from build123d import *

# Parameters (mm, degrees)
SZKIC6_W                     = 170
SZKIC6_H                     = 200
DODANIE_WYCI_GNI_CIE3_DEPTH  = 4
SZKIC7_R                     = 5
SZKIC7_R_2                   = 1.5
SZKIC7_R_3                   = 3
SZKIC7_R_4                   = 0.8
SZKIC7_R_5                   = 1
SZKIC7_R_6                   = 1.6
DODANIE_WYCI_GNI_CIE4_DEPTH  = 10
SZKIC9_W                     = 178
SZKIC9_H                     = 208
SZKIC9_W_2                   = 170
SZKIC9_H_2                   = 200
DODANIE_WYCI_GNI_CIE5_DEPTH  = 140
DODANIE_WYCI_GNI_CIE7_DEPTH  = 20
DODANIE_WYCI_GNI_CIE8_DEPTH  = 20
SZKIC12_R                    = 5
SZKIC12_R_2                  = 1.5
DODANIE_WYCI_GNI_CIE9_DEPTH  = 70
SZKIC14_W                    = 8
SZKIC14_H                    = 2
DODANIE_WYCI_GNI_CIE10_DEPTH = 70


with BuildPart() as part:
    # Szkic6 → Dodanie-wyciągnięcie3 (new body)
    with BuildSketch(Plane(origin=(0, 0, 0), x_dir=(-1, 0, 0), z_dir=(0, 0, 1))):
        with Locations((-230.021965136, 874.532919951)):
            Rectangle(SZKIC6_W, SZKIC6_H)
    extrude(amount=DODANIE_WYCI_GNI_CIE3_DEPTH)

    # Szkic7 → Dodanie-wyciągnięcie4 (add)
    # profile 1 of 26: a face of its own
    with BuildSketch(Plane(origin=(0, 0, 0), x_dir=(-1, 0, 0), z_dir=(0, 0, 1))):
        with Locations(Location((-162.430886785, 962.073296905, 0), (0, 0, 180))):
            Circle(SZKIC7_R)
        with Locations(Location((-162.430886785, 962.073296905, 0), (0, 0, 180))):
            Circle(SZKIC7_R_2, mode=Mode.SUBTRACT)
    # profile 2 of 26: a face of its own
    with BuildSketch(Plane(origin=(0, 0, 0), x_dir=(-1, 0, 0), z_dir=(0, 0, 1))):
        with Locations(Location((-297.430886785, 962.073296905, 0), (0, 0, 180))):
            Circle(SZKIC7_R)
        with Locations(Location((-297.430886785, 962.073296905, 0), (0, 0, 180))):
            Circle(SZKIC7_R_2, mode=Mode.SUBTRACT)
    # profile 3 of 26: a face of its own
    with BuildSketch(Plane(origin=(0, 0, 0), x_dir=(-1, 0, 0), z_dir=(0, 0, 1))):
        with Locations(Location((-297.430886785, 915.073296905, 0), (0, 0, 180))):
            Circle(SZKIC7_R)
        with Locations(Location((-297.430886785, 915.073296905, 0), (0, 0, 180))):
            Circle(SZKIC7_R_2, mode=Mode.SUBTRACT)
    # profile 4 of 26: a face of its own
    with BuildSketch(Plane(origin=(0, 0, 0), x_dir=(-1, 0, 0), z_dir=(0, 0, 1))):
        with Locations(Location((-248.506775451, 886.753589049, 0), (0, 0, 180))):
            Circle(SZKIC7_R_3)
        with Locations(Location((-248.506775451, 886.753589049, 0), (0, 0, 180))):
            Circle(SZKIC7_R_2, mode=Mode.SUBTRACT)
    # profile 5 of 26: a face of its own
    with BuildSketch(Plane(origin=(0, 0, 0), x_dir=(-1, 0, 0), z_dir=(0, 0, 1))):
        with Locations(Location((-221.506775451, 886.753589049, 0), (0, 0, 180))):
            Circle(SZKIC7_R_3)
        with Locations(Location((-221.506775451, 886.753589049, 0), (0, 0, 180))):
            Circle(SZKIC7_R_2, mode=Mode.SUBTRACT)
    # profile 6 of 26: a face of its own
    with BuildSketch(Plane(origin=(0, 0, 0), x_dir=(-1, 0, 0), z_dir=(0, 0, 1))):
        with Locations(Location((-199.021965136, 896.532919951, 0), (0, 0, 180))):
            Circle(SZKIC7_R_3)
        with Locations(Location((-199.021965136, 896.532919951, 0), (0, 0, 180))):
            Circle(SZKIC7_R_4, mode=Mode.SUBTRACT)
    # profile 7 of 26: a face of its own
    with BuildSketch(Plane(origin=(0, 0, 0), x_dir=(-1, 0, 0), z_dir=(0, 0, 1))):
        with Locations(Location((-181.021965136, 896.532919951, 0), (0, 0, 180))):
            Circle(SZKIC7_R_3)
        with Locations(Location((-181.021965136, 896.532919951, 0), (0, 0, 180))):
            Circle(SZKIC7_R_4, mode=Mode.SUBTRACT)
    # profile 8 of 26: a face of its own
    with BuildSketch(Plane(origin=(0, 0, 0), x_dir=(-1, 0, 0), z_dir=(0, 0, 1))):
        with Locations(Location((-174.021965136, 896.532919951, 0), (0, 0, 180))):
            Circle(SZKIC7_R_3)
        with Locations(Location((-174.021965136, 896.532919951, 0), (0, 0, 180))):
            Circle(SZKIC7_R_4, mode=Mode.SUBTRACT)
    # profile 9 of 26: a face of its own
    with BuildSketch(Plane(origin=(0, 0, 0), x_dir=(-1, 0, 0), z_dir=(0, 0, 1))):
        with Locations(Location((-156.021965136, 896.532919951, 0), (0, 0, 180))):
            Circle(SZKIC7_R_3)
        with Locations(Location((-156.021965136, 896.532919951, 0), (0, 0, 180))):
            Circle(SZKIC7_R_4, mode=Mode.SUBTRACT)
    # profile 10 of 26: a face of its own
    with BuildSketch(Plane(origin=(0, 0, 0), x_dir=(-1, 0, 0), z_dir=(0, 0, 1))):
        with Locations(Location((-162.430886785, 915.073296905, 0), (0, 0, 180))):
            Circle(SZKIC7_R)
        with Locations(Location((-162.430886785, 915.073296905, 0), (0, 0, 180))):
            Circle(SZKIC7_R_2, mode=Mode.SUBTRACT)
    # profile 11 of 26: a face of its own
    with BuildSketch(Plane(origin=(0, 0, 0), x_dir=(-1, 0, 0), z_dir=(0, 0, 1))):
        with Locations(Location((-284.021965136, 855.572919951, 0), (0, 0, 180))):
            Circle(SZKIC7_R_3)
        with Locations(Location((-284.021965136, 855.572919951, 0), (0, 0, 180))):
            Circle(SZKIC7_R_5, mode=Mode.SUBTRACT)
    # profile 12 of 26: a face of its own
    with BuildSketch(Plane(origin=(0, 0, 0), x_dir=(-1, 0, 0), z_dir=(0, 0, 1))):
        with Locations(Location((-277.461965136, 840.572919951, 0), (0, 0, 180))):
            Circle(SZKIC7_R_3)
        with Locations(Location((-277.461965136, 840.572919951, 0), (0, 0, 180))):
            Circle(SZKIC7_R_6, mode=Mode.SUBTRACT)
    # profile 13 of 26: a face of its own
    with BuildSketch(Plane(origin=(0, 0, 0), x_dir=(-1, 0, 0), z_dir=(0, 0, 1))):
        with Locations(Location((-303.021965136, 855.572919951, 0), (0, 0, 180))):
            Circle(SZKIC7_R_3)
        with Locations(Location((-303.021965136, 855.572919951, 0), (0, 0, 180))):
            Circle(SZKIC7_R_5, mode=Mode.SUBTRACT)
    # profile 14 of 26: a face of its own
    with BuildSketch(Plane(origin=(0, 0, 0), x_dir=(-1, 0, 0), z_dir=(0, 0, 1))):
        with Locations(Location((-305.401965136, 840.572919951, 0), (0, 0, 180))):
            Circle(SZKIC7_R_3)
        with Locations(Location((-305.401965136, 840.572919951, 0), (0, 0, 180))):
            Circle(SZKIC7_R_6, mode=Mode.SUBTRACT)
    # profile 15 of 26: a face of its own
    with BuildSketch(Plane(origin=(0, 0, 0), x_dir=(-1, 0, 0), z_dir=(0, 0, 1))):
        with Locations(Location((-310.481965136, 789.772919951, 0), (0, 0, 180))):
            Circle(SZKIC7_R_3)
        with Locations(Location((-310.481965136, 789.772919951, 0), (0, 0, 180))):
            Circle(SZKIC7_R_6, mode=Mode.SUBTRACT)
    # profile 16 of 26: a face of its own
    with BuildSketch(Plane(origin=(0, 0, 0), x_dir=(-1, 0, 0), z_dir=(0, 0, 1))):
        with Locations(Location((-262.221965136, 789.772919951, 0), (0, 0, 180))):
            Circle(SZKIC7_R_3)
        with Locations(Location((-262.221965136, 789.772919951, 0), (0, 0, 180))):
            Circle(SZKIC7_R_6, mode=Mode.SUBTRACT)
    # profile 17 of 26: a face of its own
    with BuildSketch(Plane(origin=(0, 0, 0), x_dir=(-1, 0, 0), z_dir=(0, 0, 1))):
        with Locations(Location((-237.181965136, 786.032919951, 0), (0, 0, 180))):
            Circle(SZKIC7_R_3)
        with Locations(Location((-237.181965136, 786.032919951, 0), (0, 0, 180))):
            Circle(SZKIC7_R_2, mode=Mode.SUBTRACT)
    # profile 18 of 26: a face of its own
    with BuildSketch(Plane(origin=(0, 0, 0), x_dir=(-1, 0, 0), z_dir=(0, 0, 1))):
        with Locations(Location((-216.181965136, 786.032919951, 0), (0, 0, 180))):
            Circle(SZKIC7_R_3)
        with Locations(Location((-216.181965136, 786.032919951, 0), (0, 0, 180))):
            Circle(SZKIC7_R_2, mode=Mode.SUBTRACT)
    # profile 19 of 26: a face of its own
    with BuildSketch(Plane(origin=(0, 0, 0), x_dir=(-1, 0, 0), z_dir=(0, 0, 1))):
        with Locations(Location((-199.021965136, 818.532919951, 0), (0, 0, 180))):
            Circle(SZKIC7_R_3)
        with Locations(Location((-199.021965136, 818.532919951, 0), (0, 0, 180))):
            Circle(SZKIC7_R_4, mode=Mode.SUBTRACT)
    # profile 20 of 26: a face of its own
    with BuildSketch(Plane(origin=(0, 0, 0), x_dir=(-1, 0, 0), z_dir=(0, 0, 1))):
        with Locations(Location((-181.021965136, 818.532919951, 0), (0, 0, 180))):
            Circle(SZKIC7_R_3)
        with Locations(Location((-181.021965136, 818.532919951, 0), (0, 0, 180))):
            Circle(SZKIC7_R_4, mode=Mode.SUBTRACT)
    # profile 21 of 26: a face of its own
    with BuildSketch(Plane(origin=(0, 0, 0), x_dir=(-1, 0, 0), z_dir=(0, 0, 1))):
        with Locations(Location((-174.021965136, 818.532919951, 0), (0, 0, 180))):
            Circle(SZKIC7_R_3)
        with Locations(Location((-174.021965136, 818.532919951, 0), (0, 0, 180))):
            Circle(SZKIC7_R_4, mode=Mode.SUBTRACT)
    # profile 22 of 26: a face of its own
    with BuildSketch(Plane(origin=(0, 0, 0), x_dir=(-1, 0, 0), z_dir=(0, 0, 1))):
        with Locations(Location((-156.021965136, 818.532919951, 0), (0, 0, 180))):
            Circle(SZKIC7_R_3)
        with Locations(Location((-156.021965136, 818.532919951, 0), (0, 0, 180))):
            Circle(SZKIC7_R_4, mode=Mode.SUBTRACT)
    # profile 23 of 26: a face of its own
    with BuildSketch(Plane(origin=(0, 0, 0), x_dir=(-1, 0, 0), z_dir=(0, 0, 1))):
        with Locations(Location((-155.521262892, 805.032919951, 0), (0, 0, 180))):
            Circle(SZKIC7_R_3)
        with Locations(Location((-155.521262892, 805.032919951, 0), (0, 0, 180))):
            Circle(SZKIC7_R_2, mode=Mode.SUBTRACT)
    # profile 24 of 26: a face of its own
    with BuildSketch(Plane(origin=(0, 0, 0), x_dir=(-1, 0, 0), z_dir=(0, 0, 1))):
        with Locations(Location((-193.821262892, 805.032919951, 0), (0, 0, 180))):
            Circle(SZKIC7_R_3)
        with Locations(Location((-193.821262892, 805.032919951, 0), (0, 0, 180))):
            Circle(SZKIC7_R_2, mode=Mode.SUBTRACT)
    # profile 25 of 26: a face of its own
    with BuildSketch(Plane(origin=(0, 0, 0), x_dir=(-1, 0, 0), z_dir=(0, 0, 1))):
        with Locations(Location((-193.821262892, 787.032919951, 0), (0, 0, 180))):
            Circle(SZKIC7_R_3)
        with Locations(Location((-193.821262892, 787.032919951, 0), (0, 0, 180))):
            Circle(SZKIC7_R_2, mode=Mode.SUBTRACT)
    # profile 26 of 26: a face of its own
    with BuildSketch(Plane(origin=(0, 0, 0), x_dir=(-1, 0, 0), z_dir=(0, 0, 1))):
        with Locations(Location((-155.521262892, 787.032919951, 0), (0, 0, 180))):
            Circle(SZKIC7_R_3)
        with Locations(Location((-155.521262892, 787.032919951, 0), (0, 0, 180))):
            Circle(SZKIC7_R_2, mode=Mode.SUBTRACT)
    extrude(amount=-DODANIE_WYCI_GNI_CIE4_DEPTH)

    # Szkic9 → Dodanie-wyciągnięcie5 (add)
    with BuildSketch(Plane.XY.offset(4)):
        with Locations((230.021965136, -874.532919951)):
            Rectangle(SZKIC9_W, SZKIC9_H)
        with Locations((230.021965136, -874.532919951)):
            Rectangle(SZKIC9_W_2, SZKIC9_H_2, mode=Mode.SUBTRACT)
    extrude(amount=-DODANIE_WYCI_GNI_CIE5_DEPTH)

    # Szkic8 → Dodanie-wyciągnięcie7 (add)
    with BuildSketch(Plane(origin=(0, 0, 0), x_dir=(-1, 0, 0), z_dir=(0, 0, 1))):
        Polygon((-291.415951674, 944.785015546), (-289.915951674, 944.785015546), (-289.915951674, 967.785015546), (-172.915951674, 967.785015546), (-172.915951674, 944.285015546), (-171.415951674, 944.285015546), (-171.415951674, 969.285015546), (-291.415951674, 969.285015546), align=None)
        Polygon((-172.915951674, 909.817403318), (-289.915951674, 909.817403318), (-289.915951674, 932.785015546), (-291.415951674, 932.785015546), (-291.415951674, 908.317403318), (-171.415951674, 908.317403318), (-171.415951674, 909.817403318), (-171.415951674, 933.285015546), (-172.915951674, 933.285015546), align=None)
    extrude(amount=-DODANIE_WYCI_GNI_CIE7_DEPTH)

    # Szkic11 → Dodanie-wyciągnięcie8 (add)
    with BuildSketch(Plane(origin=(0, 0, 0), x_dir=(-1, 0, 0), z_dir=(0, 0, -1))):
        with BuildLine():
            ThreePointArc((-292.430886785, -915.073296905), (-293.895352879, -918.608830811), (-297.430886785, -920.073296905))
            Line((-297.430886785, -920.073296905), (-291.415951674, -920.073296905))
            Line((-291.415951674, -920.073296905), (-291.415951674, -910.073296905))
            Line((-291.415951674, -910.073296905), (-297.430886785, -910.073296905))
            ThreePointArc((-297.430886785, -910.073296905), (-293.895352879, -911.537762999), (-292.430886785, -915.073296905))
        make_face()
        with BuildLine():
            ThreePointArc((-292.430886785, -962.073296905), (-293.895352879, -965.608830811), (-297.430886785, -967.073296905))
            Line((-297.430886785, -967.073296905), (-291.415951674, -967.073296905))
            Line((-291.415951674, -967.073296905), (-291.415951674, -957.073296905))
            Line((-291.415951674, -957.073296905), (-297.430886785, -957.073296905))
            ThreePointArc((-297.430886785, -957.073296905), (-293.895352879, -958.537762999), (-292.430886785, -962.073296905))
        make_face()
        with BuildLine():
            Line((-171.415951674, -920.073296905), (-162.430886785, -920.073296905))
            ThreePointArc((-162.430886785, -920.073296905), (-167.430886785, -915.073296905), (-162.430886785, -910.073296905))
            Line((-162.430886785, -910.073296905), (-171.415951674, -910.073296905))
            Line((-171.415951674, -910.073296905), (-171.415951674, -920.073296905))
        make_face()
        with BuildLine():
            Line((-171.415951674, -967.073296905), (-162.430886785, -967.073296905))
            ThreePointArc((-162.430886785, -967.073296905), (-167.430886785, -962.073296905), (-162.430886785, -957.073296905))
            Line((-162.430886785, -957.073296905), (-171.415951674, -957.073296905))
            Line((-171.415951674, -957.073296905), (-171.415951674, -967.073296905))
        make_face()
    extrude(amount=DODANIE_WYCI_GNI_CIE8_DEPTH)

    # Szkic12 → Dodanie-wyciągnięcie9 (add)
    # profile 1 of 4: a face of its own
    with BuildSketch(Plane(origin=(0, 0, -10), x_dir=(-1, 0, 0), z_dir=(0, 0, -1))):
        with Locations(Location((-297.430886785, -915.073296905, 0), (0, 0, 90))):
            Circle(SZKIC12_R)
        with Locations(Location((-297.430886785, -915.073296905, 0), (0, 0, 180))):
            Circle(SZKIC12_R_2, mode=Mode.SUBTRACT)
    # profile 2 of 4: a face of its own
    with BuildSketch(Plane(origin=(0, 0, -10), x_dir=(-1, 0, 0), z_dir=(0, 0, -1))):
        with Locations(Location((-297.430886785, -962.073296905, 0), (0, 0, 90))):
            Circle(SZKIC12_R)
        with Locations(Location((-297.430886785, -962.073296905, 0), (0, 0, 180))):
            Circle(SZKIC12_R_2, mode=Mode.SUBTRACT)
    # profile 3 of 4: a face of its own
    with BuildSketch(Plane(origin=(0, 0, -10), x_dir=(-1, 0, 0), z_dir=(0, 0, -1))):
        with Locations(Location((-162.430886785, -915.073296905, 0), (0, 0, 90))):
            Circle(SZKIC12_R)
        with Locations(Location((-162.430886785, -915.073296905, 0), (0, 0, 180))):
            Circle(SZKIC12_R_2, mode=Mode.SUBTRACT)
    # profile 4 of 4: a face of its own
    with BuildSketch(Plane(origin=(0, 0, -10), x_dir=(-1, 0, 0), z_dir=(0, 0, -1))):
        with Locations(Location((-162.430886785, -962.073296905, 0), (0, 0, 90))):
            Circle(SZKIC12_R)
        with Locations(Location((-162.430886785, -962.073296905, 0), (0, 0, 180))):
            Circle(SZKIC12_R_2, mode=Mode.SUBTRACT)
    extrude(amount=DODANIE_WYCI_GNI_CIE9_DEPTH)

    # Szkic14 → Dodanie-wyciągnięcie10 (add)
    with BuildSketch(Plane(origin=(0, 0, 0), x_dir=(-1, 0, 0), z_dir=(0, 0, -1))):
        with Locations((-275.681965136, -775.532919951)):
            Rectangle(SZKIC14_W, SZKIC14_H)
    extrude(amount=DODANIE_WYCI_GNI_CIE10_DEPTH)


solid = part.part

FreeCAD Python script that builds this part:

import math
import FreeCAD as App
import Part
import Sketcher
from FreeCAD import Vector
Q = App.Units.Quantity


def add_polygon(sketch, points):
    """Adds a closed chain of lines whose ends are joined by coincident constraints."""
    first, n = sketch.GeometryCount, len(points)
    for a, b in zip(points, points[1:] + points[:1]):
        sketch.addGeometry(Part.LineSegment(App.Vector(*a, 0), App.Vector(*b, 0)), False)
    for i in range(n):
        sketch.addConstraint(Sketcher.Constraint("Coincident", first + i, 2, first + (i + 1) % n, 1))

doc = App.newDocument("Part")
body = doc.addObject("PartDesign::Body", "Body")

# Sketch on XY plane
sketch1 = body.newObject("Sketcher::SketchObject", "Sketch")
sketch1.AttachmentSupport = (doc.getObject("XY_Plane"), [""])
sketch1.MapMode = "FlatFace"
add_polygon(sketch1, [(315.021965, -974.53292), (315.021965, -774.53292), (145.021965, -774.53292), (145.021965, -974.53292)])  # lines 0-3
sketch1.addConstraint(Sketcher.Constraint("Vertical", 0))
sketch1.addConstraint(Sketcher.Constraint("Horizontal", 1))
sketch1.addConstraint(Sketcher.Constraint("Vertical", 2))
sketch1.addConstraint(Sketcher.Constraint("Horizontal", 3))
sketch1.addConstraint(Sketcher.Constraint("DistanceX", 1, 2, 1, 1, Q("170 mm")))
sketch1.addConstraint(Sketcher.Constraint("DistanceY", 0, 1, 0, 2, Q("200 mm")))
sketch1.addConstraint(Sketcher.Constraint("DistanceY", 0, 2, -1, 1, Q("774.53292 mm")))
sketch1.addConstraint(Sketcher.Constraint("DistanceX", -1, 1, 0, 2, Q("315.021965 mm")))
pad1 = body.newObject("PartDesign::Pad", "Pad")
pad1.Profile = sketch1
pad1.Length = 4

# Sketch on XY plane
sketch2 = body.newObject("Sketcher::SketchObject", "Sketch001")
sketch2.AttachmentSupport = (doc.getObject("XY_Plane"), [""])
sketch2.MapMode = "FlatFace"
sketch2.addGeometry(Part.Circle(Vector(162.430887, -962.073297, 0), Vector(0, 0, 1), 5), False)
sketch2.addGeometry(Part.Circle(Vector(162.430887, -962.073297, 0), Vector(0, 0, 1), 1.5), False)
sketch2.addGeometry(Part.Circle(Vector(297.430887, -962.073297, 0), Vector(0, 0, 1), 5), False)
sketch2.addGeometry(Part.Circle(Vector(297.430887, -962.073297, 0), Vector(0, 0, 1), 1.5), False)
sketch2.addGeometry(Part.Circle(Vector(297.430887, -915.073297, 0), Vector(0, 0, 1), 5), False)
sketch2.addGeometry(Part.Circle(Vector(297.430887, -915.073297, 0), Vector(0, 0, 1), 1.5), False)
sketch2.addGeometry(Part.Circle(Vector(248.506775, -886.753589, 0), Vector(0, 0, 1), 3), False)
sketch2.addGeometry(Part.Circle(Vector(248.506775, -886.753589, 0), Vector(0, 0, 1), 1.5), False)
sketch2.addGeometry(Part.Circle(Vector(221.506775, -886.753589, 0), Vector(0, 0, 1), 3), False)
sketch2.addGeometry(Part.Circle(Vector(221.506775, -886.753589, 0), Vector(0, 0, 1), 1.5), False)
sketch2.addGeometry(Part.Circle(Vector(199.021965, -896.53292, 0), Vector(0, 0, 1), 3), False)
sketch2.addGeometry(Part.Circle(Vector(199.021965, -896.53292, 0), Vector(0, 0, 1), 0.8), False)
sketch2.addGeometry(Part.Circle(Vector(181.021965, -896.53292, 0), Vector(0, 0, 1), 3), False)
sketch2.addGeometry(Part.Circle(Vector(181.021965, -896.53292, 0), Vector(0, 0, 1), 0.8), False)
sketch2.addGeometry(Part.Circle(Vector(174.021965, -896.53292, 0), Vector(0, 0, 1), 3), False)
sketch2.addGeometry(Part.Circle(Vector(174.021965, -896.53292, 0), Vector(0, 0, 1), 0.8), False)
sketch2.addGeometry(Part.Circle(Vector(156.021965, -896.53292, 0), Vector(0, 0, 1), 3), False)
sketch2.addGeometry(Part.Circle(Vector(156.021965, -896.53292, 0), Vector(0, 0, 1), 0.8), False)
sketch2.addGeometry(Part.Circle(Vector(162.430887, -915.073297, 0), Vector(0, 0, 1), 5), False)
sketch2.addGeometry(Part.Circle(Vector(162.430887, -915.073297, 0), Vector(0, 0, 1), 1.5), False)
sketch2.addGeometry(Part.Circle(Vector(284.021965, -855.57292, 0), Vector(0, 0, 1), 3), False)
sketch2.addGeometry(Part.Circle(Vector(284.021965, -855.57292, 0), Vector(0, 0, 1), 1), False)
sketch2.addGeometry(Part.Circle(Vector(277.461965, -840.57292, 0), Vector(0, 0, 1), 3), False)
sketch2.addGeometry(Part.Circle(Vector(277.461965, -840.57292, 0), Vector(0, 0, 1), 1.6), False)
sketch2.addGeometry(Part.Circle(Vector(303.021965, -855.57292, 0), Vector(0, 0, 1), 3), False)
sketch2.addGeometry(Part.Circle(Vector(303.021965, -855.57292, 0), Vector(0, 0, 1), 1), False)
sketch2.addGeometry(Part.Circle(Vector(305.401965, -840.57292, 0), Vector(0, 0, 1), 3), False)
sketch2.addGeometry(Part.Circle(Vector(305.401965, -840.57292, 0), Vector(0, 0, 1), 1.6), False)
sketch2.addGeometry(Part.Circle(Vector(310.481965, -789.77292, 0), Vector(0, 0, 1), 3), False)
sketch2.addGeometry(Part.Circle(Vector(310.481965, -789.77292, 0), Vector(0, 0, 1), 1.6), False)
sketch2.addGeometry(Part.Circle(Vector(262.221965, -789.77292, 0), Vector(0, 0, 1), 3), False)
sketch2.addGeometry(Part.Circle(Vector(262.221965, -789.77292, 0), Vector(0, 0, 1), 1.6), False)
sketch2.addGeometry(Part.Circle(Vector(237.181965, -786.03292, 0), Vector(0, 0, 1), 3), False)
sketch2.addGeometry(Part.Circle(Vector(237.181965, -786.03292, 0), Vector(0, 0, 1), 1.5), False)
sketch2.addGeometry(Part.Circle(Vector(216.181965, -786.03292, 0), Vector(0, 0, 1), 3), False)
sketch2.addGeometry(Part.Circle(Vector(216.181965, -786.03292, 0), Vector(0, 0, 1), 1.5), False)
sketch2.addGeometry(Part.Circle(Vector(199.021965, -818.53292, 0), Vector(0, 0, 1), 3), False)
sketch2.addGeometry(Part.Circle(Vector(199.021965, -818.53292, 0), Vector(0, 0, 1), 0.8), False)
sketch2.addGeometry(Part.Circle(Vector(181.021965, -818.53292, 0), Vector(0, 0, 1), 3), False)
sketch2.addGeometry(Part.Circle(Vector(181.021965, -818.53292, 0), Vector(0, 0, 1), 0.8), False)
sketch2.addGeometry(Part.Circle(Vector(174.021965, -818.53292, 0), Vector(0, 0, 1), 3), False)
sketch2.addGeometry(Part.Circle(Vector(174.021965, -818.53292, 0), Vector(0, 0, 1), 0.8), False)
sketch2.addGeometry(Part.Circle(Vector(156.021965, -818.53292, 0), Vector(0, 0, 1), 3), False)
sketch2.addGeometry(Part.Circle(Vector(156.021965, -818.53292, 0), Vector(0, 0, 1), 0.8), False)
sketch2.addGeometry(Part.Circle(Vector(155.521263, -805.03292, 0), Vector(0, 0, 1), 3), False)
sketch2.addGeometry(Part.Circle(Vector(155.521263, -805.03292, 0), Vector(0, 0, 1), 1.5), False)
sketch2.addGeometry(Part.Circle(Vector(193.821263, -805.03292, 0), Vector(0, 0, 1), 3), False)
sketch2.addGeometry(Part.Circle(Vector(193.821263, -805.03292, 0), Vector(0, 0, 1), 1.5), False)
sketch2.addGeometry(Part.Circle(Vector(193.821263, -787.03292, 0), Vector(0, 0, 1), 3), False)
sketch2.addGeometry(Part.Circle(Vector(193.821263, -787.03292, 0), Vector(0, 0, 1), 1.5), False)
sketch2.addGeometry(Part.Circle(Vector(155.521263, -787.03292, 0), Vector(0, 0, 1), 3), False)
sketch2.addGeometry(Part.Circle(Vector(155.521263, -787.03292, 0), Vector(0, 0, 1), 1.5), False)
sketch2.addConstraint(Sketcher.Constraint("Coincident", 1, 3, 0, 3))
sketch2.addConstraint(Sketcher.Constraint("Coincident", 3, 3, 2, 3))
sketch2.addConstraint(Sketcher.Constraint("Coincident", 5, 3, 4, 3))
sketch2.addConstraint(Sketcher.Constraint("Coincident", 7, 3, 6, 3))
sketch2.addConstraint(Sketcher.Constraint("Coincident", 9, 3, 8, 3))
sketch2.addConstraint(Sketcher.Constraint("Coincident", 11, 3, 10, 3))
sketch2.addConstraint(Sketcher.Constraint("Coincident", 13, 3, 12, 3))
sketch2.addConstraint(Sketcher.Constraint("Coincident", 15, 3, 14, 3))
sketch2.addConstraint(Sketcher.Constraint("Coincident", 17, 3, 16, 3))
sketch2.addConstraint(Sketcher.Constraint("Coincident", 19, 3, 18, 3))
sketch2.addConstraint(Sketcher.Constraint("Coincident", 21, 3, 20, 3))
sketch2.addConstraint(Sketcher.Constraint("Coincident", 23, 3, 22, 3))
sketch2.addConstraint(Sketcher.Constraint("Coincident", 25, 3, 24, 3))
sketch2.addConstraint(Sketcher.Constraint("Coincident", 27, 3, 26, 3))
sketch2.addConstraint(Sketcher.Constraint("Coincident", 29, 3, 28, 3))
sketch2.addConstraint(Sketcher.Constraint("Coincident", 31, 3, 30, 3))
sketch2.addConstraint(Sketcher.Constraint("Coincident", 33, 3, 32, 3))
sketch2.addConstraint(Sketcher.Constraint("Coincident", 35, 3, 34, 3))
sketch2.addConstraint(Sketcher.Constraint("Coincident", 37, 3, 36, 3))
sketch2.addConstraint(Sketcher.Constraint("Coincident", 39, 3, 38, 3))
sketch2.addConstraint(Sketcher.Constraint("Coincident", 41, 3, 40, 3))
sketch2.addConstraint(Sketcher.Constraint("Coincident", 43, 3, 42, 3))
sketch2.addConstraint(Sketcher.Constraint("Coincident", 45, 3, 44, 3))
sketch2.addConstraint(Sketcher.Constraint("Coincident", 47, 3, 46, 3))
sketch2.addConstraint(Sketcher.Constraint("Coincident", 49, 3, 48, 3))
sketch2.addConstraint(Sketcher.Constraint("Coincident", 51, 3, 50, 3))
sketch2.addConstraint(Sketcher.Constraint("Equal", 0, 2))
sketch2.addConstraint(Sketcher.Constraint("Equal", 1, 3))
sketch2.addConstraint(Sketcher.Constraint("Equal", 2, 4))
sketch2.addConstraint(Sketcher.Constraint("Equal", 3, 5))
sketch2.addConstraint(Sketcher.Constraint("Equal", 5, 7))
sketch2.addConstraint(Sketcher.Constraint("Equal", 6, 8))
sketch2.addConstraint(Sketcher.Constraint("Equal", 7, 9))
sketch2.addConstraint(Sketcher.Constraint("Equal", 8, 10))
sketch2.addConstraint(Sketcher.Constraint("Equal", 10, 12))
sketch2.addConstraint(Sketcher.Constraint("Equal", 11, 13))
sketch2.addConstraint(Sketcher.Constraint("Equal", 12, 14))
sketch2.addConstraint(Sketcher.Constraint("Equal", 13, 15))
sketch2.addConstraint(Sketcher.Constraint("Equal", 14, 16))
sketch2.addConstraint(Sketcher.Constraint("Equal", 15, 17))
sketch2.addConstraint(Sketcher.Constraint("Equal", 4, 18))
sketch2.addConstraint(Sketcher.Constraint("Equal", 9, 19))
sketch2.addConstraint(Sketcher.Constraint("Equal", 16, 20))
sketch2.addConstraint(Sketcher.Constraint("Equal", 20, 22))
sketch2.addConstraint(Sketcher.Constraint("Equal", 22, 24))
sketch2.addConstraint(Sketcher.Constraint("Equal", 21, 25))
sketch2.addConstraint(Sketcher.Constraint("Equal", 24, 26))
sketch2.addConstraint(Sketcher.Constraint("Equal", 23, 27))
sketch2.addConstraint(Sketcher.Constraint("Equal", 26, 28))
sketch2.addConstraint(Sketcher.Constraint("Equal", 27, 29))
sketch2.addConstraint(Sketcher.Constraint("Equal", 28, 30))
sketch2.addConstraint(Sketcher.Constraint("Equal", 29, 31))
sketch2.addConstraint(Sketcher.Constraint("Equal", 30, 32))
sketch2.addConstraint(Sketcher.Constraint("Equal", 19, 33))
sketch2.addConstraint(Sketcher.Constraint("Equal", 32, 34))
sketch2.addConstraint(Sketcher.Constraint("Equal", 33, 35))
sketch2.addConstraint(Sketcher.Constraint("Equal", 34, 36))
sketch2.addConstraint(Sketcher.Constraint("Equal", 17, 37))
sketch2.addConstraint(Sketcher.Constraint("Equal", 36, 38))
sketch2.addConstraint(Sketcher.Constraint("Equal", 37, 39))
sketch2.addConstraint(Sketcher.Constraint("Equal", 38, 40))
sketch2.addConstraint(Sketcher.Constraint("Equal", 39, 41))
sketch2.addConstraint(Sketcher.Constraint("Equal", 40, 42))
sketch2.addConstraint(Sketcher.Constraint("Equal", 41, 43))
sketch2.addConstraint(Sketcher.Constraint("Equal", 42, 44))
sketch2.addConstraint(Sketcher.Constraint("Equal", 35, 45))
sketch2.addConstraint(Sketcher.Constraint("Equal", 44, 46))
sketch2.addConstraint(Sketcher.Constraint("Equal", 45, 47))
sketch2.addConstraint(Sketcher.Constraint("Equal", 46, 48))
sketch2.addConstraint(Sketcher.Constraint("Equal", 47, 49))
sketch2.addConstraint(Sketcher.Constraint("Equal", 48, 50))
sketch2.addConstraint(Sketcher.Constraint("Equal", 49, 51))
sketch2.addConstraint(Sketcher.Constraint("Horizontal", 1, 3, 2, 3))
sketch2.addConstraint(Sketcher.Constraint("Horizontal", 7, 3, 8, 3))
sketch2.addConstraint(Sketcher.Constraint("Horizontal", 11, 3, 12, 3))
sketch2.addConstraint(Sketcher.Constraint("Horizontal", 13, 3, 14, 3))
sketch2.addConstraint(Sketcher.Constraint("Horizontal", 15, 3, 16, 3))
sketch2.addConstraint(Sketcher.Constraint("Horizontal", 5, 3, 18, 3))
sketch2.addConstraint(Sketcher.Constraint("Horizontal", 21, 3, 24, 3))
sketch2.addConstraint(Sketcher.Constraint("Horizontal", 23, 3, 26, 3))
sketch2.addConstraint(Sketcher.Constraint("Horizontal", 29, 3, 30, 3))
sketch2.addConstraint(Sketcher.Constraint("Horizontal", 33, 3, 34, 3))
sketch2.addConstraint(Sketcher.Constraint("Horizontal", 37, 3, 38, 3))
sketch2.addConstraint(Sketcher.Constraint("Horizontal", 39, 3, 40, 3))
sketch2.addConstraint(Sketcher.Constraint("Horizontal", 41, 3, 42, 3))
sketch2.addConstraint(Sketcher.Constraint("Horizontal", 45, 3, 46, 3))
sketch2.addConstraint(Sketcher.Constraint("Horizontal", 49, 3, 50, 3))
sketch2.addConstraint(Sketcher.Constraint("Vertical", 3, 3, 4, 3))
sketch2.addConstraint(Sketcher.Constraint("Vertical", 1, 3, 18, 3))
sketch2.addConstraint(Sketcher.Constraint("Vertical", 11, 3, 36, 3))
sketch2.addConstraint(Sketcher.Constraint("Vertical", 13, 3, 38, 3))
sketch2.addConstraint(Sketcher.Constraint("Vertical", 15, 3, 40, 3))
sketch2.addConstraint(Sketcher.Constraint("Vertical", 17, 3, 42, 3))
sketch2.addConstraint(Sketcher.Constraint("Vertical", 47, 3, 48, 3))
sketch2.addConstraint(Sketcher.Constraint("Vertical", 45, 3, 50, 3))
sketch2.addConstraint(Sketcher.Constraint("Diameter", 0, Q("10 mm")))
sketch2.addConstraint(Sketcher.Constraint("Diameter", 1, Q("3 mm")))
sketch2.addConstraint(Sketcher.Constraint("Diameter", 6, Q("6 mm")))
sketch2.addConstraint(Sketcher.Constraint("Diameter", 21, Q("2 mm")))
sketch2.addConstraint(Sketcher.Constraint("Diameter", 11, Q("1.6 mm")))
sketch2.addConstraint(Sketcher.Constraint("Diameter", 23, Q("3.2 mm")))
sketch2.addConstraint(Sketcher.Constraint("DistanceX", 0, 3, 2, 3, Q("135 mm")))
sketch2.addConstraint(Sketcher.Constraint("DistanceY", 2, 3, 4, 3, Q("47 mm")))
sketch2.addConstraint(Sketcher.Constraint("DistanceX", 8, 3, 6, 3, Q("27 mm")))
sketch2.addConstraint(Sketcher.Constraint("DistanceX", 12, 3, 10, 3, Q("18 mm")))
sketch2.addConstraint(Sketcher.Constraint("DistanceX", 14, 3, 12, 3, Q("7 mm")))
sketch2.addConstraint(Sketcher.Constraint("DistanceX", 16, 3, 14, 3, Q("18 mm")))
sketch2.addConstraint(Sketcher.Constraint("DistanceY", 20, 3, 22, 3, Q("15 mm")))
sketch2.addConstraint(Sketcher.Constraint("DistanceX", 20, 3, 24, 3, Q("19 mm")))
sketch2.addConstraint(Sketcher.Constraint("DistanceX", 34, 3, 32, 3, Q("21 mm")))
sketch2.addConstraint(Sketcher.Constraint("DistanceY", 46, 3, 48, 3, Q("18 mm")))
sketch2.addConstraint(Sketcher.Constraint("DistanceY", 48, 3, 34, 3, Q("1 mm")))
sketch2.addConstraint(Sketcher.Constraint("DistanceY", 26, 3, 28, 3, Q("50.8 mm")))
sketch2.addConstraint(Sketcher.Constraint("DistanceX", 32, 3, 28, 3, Q("73.3 mm")))
sketch2.addConstraint(Sketcher.Constraint("DistanceY", 36, 3, 34, 3, Q("32.5 mm")))
sketch2.addConstraint(Sketcher.Constraint("DistanceX", 36, 3, 30, 3, Q("63.2 mm")))
sketch2.addConstraint(Sketcher.Constraint("DistanceX", 22, 3, 20, 3, Q("6.56 mm")))
sketch2.addConstraint(Sketcher.Constraint("DistanceX", 24, 3, 26, 3, Q("2.38 mm")))
sketch2.addConstraint(Sketcher.Constraint("DistanceX", 26, 3, 28, 3, Q("5.08 mm")))
sketch2.addConstraint(Sketcher.Constraint("DistanceX", 30, 3, 28, 3, Q("48.26 mm")))
sketch2.addConstraint(Sketcher.Constraint("DistanceY", 30, 3, 32, 3, Q("3.74 mm")))
sketch2.addConstraint(Sketcher.Constraint("DistanceY", 6, 3, -1, 1, Q("886.753589 mm")))
sketch2.addConstraint(Sketcher.Constraint("DistanceY", 10, 3, -1, 1, Q("896.53292 mm")))
sketch2.addConstraint(Sketcher.Constraint("DistanceY", 20, 3, -1, 1, Q("855.57292 mm")))
sketch2.addConstraint(Sketcher.Constraint("DistanceX", 6, 3, 4, 3, Q("48.924111 mm")))
sketch2.addConstraint(Sketcher.Constraint("DistanceX", 10, 3, 8, 3, Q("22.48481 mm")))
sketch2.addConstraint(Sketcher.Constraint("DistanceX", -1, 1, 0, 3, Q("162.430887 mm")))
sketch2.addConstraint(Sketcher.Constraint("DistanceY", 0, 3, -1, 1, Q("962.073297 mm")))
sketch2.addConstraint(Sketcher.Constraint("DistanceX", -1, 1, 44, 3, Q("155.521263 mm")))
sketch2.addConstraint(Sketcher.Constraint("DistanceX", -1, 1, 46, 3, Q("193.821263 mm")))
pad2 = body.newObject("PartDesign::Pad", "Pad001")
pad2.Profile = sketch2
pad2.Length = 10
pad2.Reversed = True

# Sketch on XY plane
sketch3 = body.newObject("Sketcher::SketchObject", "Sketch002")
sketch3.AttachmentSupport = (doc.getObject("XY_Plane"), [""])
sketch3.MapMode = "FlatFace"
sketch3.AttachmentOffset = App.Placement(Vector(0, 0, 4), App.Rotation())
add_polygon(sketch3, [(141.021965, -770.53292), (141.021965, -978.53292), (319.021965, -978.53292), (319.021965, -770.53292)])  # lines 0-3
add_polygon(sketch3, [(315.021965, -974.53292), (145.021965, -974.53292), (145.021965, -774.53292), (315.021965, -774.53292)])  # lines 4-7
sketch3.addConstraint(Sketcher.Constraint("Vertical", 0))
sketch3.addConstraint(Sketcher.Constraint("Horizontal", 1))
sketch3.addConstraint(Sketcher.Constraint("Vertical", 2))
sketch3.addConstraint(Sketcher.Constraint("Horizontal", 3))
sketch3.addConstraint(Sketcher.Constraint("Horizontal", 4))
sketch3.addConstraint(Sketcher.Constraint("Vertical", 5))
sketch3.addConstraint(Sketcher.Constraint("Horizontal", 6))
sketch3.addConstraint(Sketcher.Constraint("Vertical", 7))
sketch3.addConstraint(Sketcher.Constraint("DistanceX", 1, 1, 1, 2, Q("178 mm")))
sketch3.addConstraint(Sketcher.Constraint("DistanceX", 4, 2, 4, 1, Q("170 mm")))
sketch3.addConstraint(Sketcher.Constraint("DistanceY", 0, 2, 0, 1, Q("208 mm")))
sketch3.addConstraint(Sketcher.Constraint("DistanceY", 5, 1, 5, 2, Q("200 mm")))
sketch3.addConstraint(Sketcher.Constraint("DistanceX", 0, 2, 4, 2, Q("4 mm")))
sketch3.addConstraint(Sketcher.Constraint("DistanceY", 0, 2, 4, 2, Q("4 mm")))
sketch3.addConstraint(Sketcher.Constraint("DistanceY", 0, 2, -1, 1, Q("978.53292 mm")))
sketch3.addConstraint(Sketcher.Constraint("DistanceX", -1, 1, 0, 2, Q("141.021965 mm")))
pad3 = body.newObject("PartDesign::Pad", "Pad002")
pad3.Profile = sketch3
pad3.Length = 140
pad3.Reversed = True

# Sketch on XY plane
sketch4 = body.newObject("Sketcher::SketchObject", "Sketch003")
sketch4.AttachmentSupport = (doc.getObject("XY_Plane"), [""])
sketch4.MapMode = "FlatFace"
add_polygon(sketch4, [(291.415952, -944.785016), (289.915952, -944.785016), (289.915952, -967.785016), (172.915952, -967.785016), (172.915952, -944.285016), (171.415952, -944.285016), (171.415952, -969.285016), (291.415952, -969.285016)])  # lines 0-7
add_polygon(sketch4, [(172.915952, -909.817403), (289.915952, -909.817403), (289.915952, -932.785016), (291.415952, -932.785016), (291.415952, -908.317403), (171.415952, -908.317403), (171.415952, -933.285016), (172.915952, -933.285016)])  # lines 8-15
sketch4.addConstraint(Sketcher.Constraint("Horizontal", 0))
sketch4.addConstraint(Sketcher.Constraint("Vertical", 1))
sketch4.addConstraint(Sketcher.Constraint("Horizontal", 2))
sketch4.addConstraint(Sketcher.Constraint("Vertical", 3))
sketch4.addConstraint(Sketcher.Constraint("Horizontal", 4))
sketch4.addConstraint(Sketcher.Constraint("Vertical", 5))
sketch4.addConstraint(Sketcher.Constraint("Horizontal", 6))
sketch4.addConstraint(Sketcher.Constraint("Vertical", 7))
sketch4.addConstraint(Sketcher.Constraint("Horizontal", 8))
sketch4.addConstraint(Sketcher.Constraint("Vertical", 9))
sketch4.addConstraint(Sketcher.Constraint("Horizontal", 10))
sketch4.addConstraint(Sketcher.Constraint("Vertical", 11))
sketch4.addConstraint(Sketcher.Constraint("Horizontal", 12))
sketch4.addConstraint(Sketcher.Constraint("Vertical", 13))
sketch4.addConstraint(Sketcher.Constraint("Horizontal", 14))
sketch4.addConstraint(Sketcher.Constraint("Vertical", 15))
sketch4.addConstraint(Sketcher.Constraint("Vertical", 1, 2, 8, 2))
sketch4.addConstraint(Sketcher.Constraint("Vertical", 7, 2, 10, 2))
sketch4.addConstraint(Sketcher.Constraint("Vertical", 5, 2, 12, 2))
sketch4.addConstraint(Sketcher.Constraint("Vertical", 3, 2, 14, 2))
sketch4.addConstraint(Sketcher.Constraint("Equal", 0, 4))
sketch4.addConstraint(Sketcher.Constraint("DistanceX", 2, 2, 2, 1, Q("117 mm")))
sketch4.addConstraint(Sketcher.Constraint("DistanceX", 6, 1, 6, 2, Q("120 mm")))
sketch4.addConstraint(Sketcher.Constraint("DistanceY", 1, 2, 1, 1, Q("23 mm")))
sketch4.addConstraint(Sketcher.Constraint("DistanceY", 5, 2, 5, 1, Q("25 mm")))
sketch4.addConstraint(Sketcher.Constraint("DistanceY", 3, 1, 3, 2, Q("23.5 mm")))
sketch4.addConstraint(Sketcher.Constraint("DistanceY", 0, 2, 9, 2, Q("12 mm")))
sketch4.addConstraint(Sketcher.Constraint("DistanceY", 4, 2, 13, 2, Q("11 mm")))
sketch4.addConstraint(Sketcher.Constraint("DistanceY", 8, 2, 11, 2, Q("1.5 mm")))
sketch4.addConstraint(Sketcher.Constraint("DistanceY", 9, 2, 9, 1, Q("22.967612 mm")))
sketch4.addConstraint(Sketcher.Constraint("DistanceX", -1, 1, 0, 2, Q("289.915952 mm")))
sketch4.addConstraint(Sketcher.Constraint("DistanceY", 0, 2, -1, 1, Q("944.785016 mm")))
pad4 = body.newObject("PartDesign::Pad", "Pad003")
pad4.Profile = sketch4
pad4.Length = 20
pad4.Reversed = True

# Sketch on XY plane
sketch5 = body.newObject("Sketcher::SketchObject", "Sketch004")
sketch5.AttachmentSupport = (doc.getObject("XY_Plane"), [""])
sketch5.MapMode = "FlatFace"
sketch5.addGeometry(Part.ArcOfCircle(Part.Circle(Vector(297.430887, -915.073297, 0), Vector(0, 0, 1), 5), math.radians(180), math.radians(270)), False)
sketch5.addGeometry(Part.LineSegment(Vector(297.430887, -920.073297, 0), Vector(291.415952, -920.073297, 0)), False)
sketch5.addGeometry(Part.LineSegment(Vector(291.415952, -920.073297, 0), Vector(291.415952, -910.073297, 0)), False)
sketch5.addGeometry(Part.LineSegment(Vector(291.415952, -910.073297, 0), Vector(297.430887, -910.073297, 0)), False)
sketch5.addGeometry(Part.ArcOfCircle(Part.Circle(Vector(297.430887, -915.073297, 0), Vector(0, 0, 1), 5), math.radians(90), math.radians(180)), False)
sketch5.addGeometry(Part.ArcOfCircle(Part.Circle(Vector(297.430887, -962.073297, 0), Vector(0, 0, 1), 5), math.radians(180), math.radians(270)), False)
sketch5.addGeometry(Part.LineSegment(Vector(297.430887, -967.073297, 0), Vector(291.415952, -967.073297, 0)), False)
sketch5.addGeometry(Part.LineSegment(Vector(291.415952, -967.073297, 0), Vector(291.415952, -957.073297, 0)), False)
sketch5.addGeometry(Part.LineSegment(Vector(291.415952, -957.073297, 0), Vector(297.430887, -957.073297, 0)), False)
sketch5.addGeometry(Part.ArcOfCircle(Part.Circle(Vector(297.430887, -962.073297, 0), Vector(0, 0, 1), 5), math.radians(90), math.radians(180)), False)
sketch5.addGeometry(Part.LineSegment(Vector(171.415952, -920.073297, 0), Vector(162.430887, -920.073297, 0)), False)
sketch5.addGeometry(Part.ArcOfCircle(Part.Circle(Vector(162.430887, -915.073297, 0), Vector(0, 0, 1), 5), math.radians(-90), math.radians(90)), False)
sketch5.addGeometry(Part.LineSegment(Vector(162.430887, -910.073297, 0), Vector(171.415952, -910.073297, 0)), False)
sketch5.addGeometry(Part.LineSegment(Vector(171.415952, -910.073297, 0), Vector(171.415952, -920.073297, 0)), False)
sketch5.addGeometry(Part.LineSegment(Vector(171.415952, -967.073297, 0), Vector(162.430887, -967.073297, 0)), False)
sketch5.addGeometry(Part.ArcOfCircle(Part.Circle(Vector(162.430887, -962.073297, 0), Vector(0, 0, 1), 5), math.radians(-90), math.radians(90)), False)
sketch5.addGeometry(Part.LineSegment(Vector(162.430887, -957.073297, 0), Vector(171.415952, -957.073297, 0)), False)
sketch5.addGeometry(Part.LineSegment(Vector(171.415952, -957.073297, 0), Vector(171.415952, -967.073297, 0)), False)
sketch5.addConstraint(Sketcher.Constraint("Tangent", 0, 2, 1, 1))
sketch5.addConstraint(Sketcher.Constraint("Coincident", 1, 2, 2, 1))
sketch5.addConstraint(Sketcher.Constraint("Coincident", 2, 2, 3, 1))
sketch5.addConstraint(Sketcher.Constraint("Tangent", 3, 2, 4, 1))
sketch5.addConstraint(Sketcher.Constraint("Tangent", 4, 2, 0, 1))
sketch5.addConstraint(Sketcher.Constraint("Tangent", 5, 2, 6, 1))
sketch5.addConstraint(Sketcher.Constraint("Coincident", 6, 2, 7, 1))
sketch5.addConstraint(Sketcher.Constraint("Coincident", 7, 2, 8, 1))
sketch5.addConstraint(Sketcher.Constraint("Tangent", 8, 2, 9, 1))
sketch5.addConstraint(Sketcher.Constraint("Tangent", 9, 2, 5, 1))
sketch5.addConstraint(Sketcher.Constraint("Tangent", 10, 2, 11, 1))
sketch5.addConstraint(Sketcher.Constraint("Tangent", 11, 2, 12, 1))
sketch5.addConstraint(Sketcher.Constraint("Coincident", 12, 2, 13, 1))
sketch5.addConstraint(Sketcher.Constraint("Coincident", 13, 2, 10, 1))
sketch5.addConstraint(Sketcher.Constraint("Tangent", 14, 2, 15, 1))
sketch5.addConstraint(Sketcher.Constraint("Tangent", 15, 2, 16, 1))
sketch5.addConstraint(Sketcher.Constraint("Coincident", 16, 2, 17, 1))
sketch5.addConstraint(Sketcher.Constraint("Coincident", 17, 2, 14, 1))
sketch5.addConstraint(Sketcher.Constraint("Horizontal", 1))
sketch5.addConstraint(Sketcher.Constraint("Vertical", 2))
sketch5.addConstraint(Sketcher.Constraint("Horizontal", 3))
sketch5.addConstraint(Sketcher.Constraint("Horizontal", 6))
sketch5.addConstraint(Sketcher.Constraint("Vertical", 7))
sketch5.addConstraint(Sketcher.Constraint("Horizontal", 8))
sketch5.addConstraint(Sketcher.Constraint("Horizontal", 10))
sketch5.addConstraint(Sketcher.Constraint("Horizontal", 12))
sketch5.addConstraint(Sketcher.Constraint("Vertical", 13))
sketch5.addConstraint(Sketcher.Constraint("Horizontal", 14))
sketch5.addConstraint(Sketcher.Constraint("Horizontal", 16))
sketch5.addConstraint(Sketcher.Constraint("Vertical", 17))
sketch5.addConstraint(Sketcher.Constraint("Equal", 0, 4))
sketch5.addConstraint(Sketcher.Constraint("Equal", 4, 5))
sketch5.addConstraint(Sketcher.Constraint("Equal", 5, 9))
sketch5.addConstraint(Sketcher.Constraint("Equal", 9, 11))
sketch5.addConstraint(Sketcher.Constraint("Equal", 11, 15))
sketch5.addConstraint(Sketcher.Constraint("Horizontal", 4, 3, 11, 3))
sketch5.addConstraint(Sketcher.Constraint("Horizontal", 9, 3, 15, 3))
sketch5.addConstraint(Sketcher.Constraint("Horizontal", 11, 3, 4, 2))
sketch5.addConstraint(Sketcher.Constraint("Horizontal", 15, 3, 9, 2))
sketch5.addConstraint(Sketcher.Constraint("Vertical", 4, 3, 5, 3))
sketch5.addConstraint(Sketcher.Constraint("Vertical", 11, 3, 15, 3))
sketch5.addConstraint(Sketcher.Constraint("Vertical", 2, 2, 6, 2))
sketch5.addConstraint(Sketcher.Constraint("Vertical", 13, 2, 16, 2))
sketch5.addConstraint(Sketcher.Constraint("Radius", 0, Q("5 mm")))
sketch5.addConstraint(Sketcher.Constraint("DistanceY", 5, 3, 0, 3, Q("47 mm")))
sketch5.addConstraint(Sketcher.Constraint("DistanceX", 11, 3, 0, 3, Q("135 mm")))
sketch5.addConstraint(Sketcher.Constraint("DistanceX", 12, 2, 2, 2, Q("120 mm")))
sketch5.addConstraint(Sketcher.Constraint("DistanceX", 1, 2, 1, 1, Q("6.014935 mm")))
sketch5.addConstraint(Sketcher.Constraint("DistanceX", -1, 1, 1, 2, Q("291.415952 mm")))
sketch5.addConstraint(Sketcher.Constraint("DistanceY", 0, 3, -1, 1, Q("915.073297 mm")))
pad5 = body.newObject("PartDesign::Pad", "Pad004")
pad5.Profile = sketch5
pad5.Length = 20
pad5.Reversed = True

# Sketch on XY plane
sketch6 = body.newObject("Sketcher::SketchObject", "Sketch005")
sketch6.AttachmentSupport = (doc.getObject("XY_Plane"), [""])
sketch6.MapMode = "FlatFace"
sketch6.AttachmentOffset = App.Placement(Vector(0, 0, -10), App.Rotation())
sketch6.addGeometry(Part.Circle(Vector(297.430887, -915.073297, 0), Vector(0, 0, 1), 5), False)
sketch6.addGeometry(Part.Circle(Vector(297.430887, -915.073297, 0), Vector(0, 0, 1), 1.5), False)
sketch6.addGeometry(Part.Circle(Vector(297.430887, -962.073297, 0), Vector(0, 0, 1), 5), False)
sketch6.addGeometry(Part.Circle(Vector(297.430887, -962.073297, 0), Vector(0, 0, 1), 1.5), False)
sketch6.addGeometry(Part.Circle(Vector(162.430887, -915.073297, 0), Vector(0, 0, 1), 5), False)
sketch6.addGeometry(Part.Circle(Vector(162.430887, -915.073297, 0), Vector(0, 0, 1), 1.5), False)
sketch6.addGeometry(Part.Circle(Vector(162.430887, -962.073297, 0), Vector(0, 0, 1), 5), False)
sketch6.addGeometry(Part.Circle(Vector(162.430887, -962.073297, 0), Vector(0, 0, 1), 1.5), False)
sketch6.addConstraint(Sketcher.Constraint("Coincident", 1, 3, 0, 3))
sketch6.addConstraint(Sketcher.Constraint("Coincident", 3, 3, 2, 3))
sketch6.addConstraint(Sketcher.Constraint("Coincident", 5, 3, 4, 3))
sketch6.addConstraint(Sketcher.Constraint("Coincident", 7, 3, 6, 3))
sketch6.addConstraint(Sketcher.Constraint("Equal", 0, 2))
sketch6.addConstraint(Sketcher.Constraint("Equal", 1, 3))
sketch6.addConstraint(Sketcher.Constraint("Equal", 2, 4))
sketch6.addConstraint(Sketcher.Constraint("Equal", 3, 5))
sketch6.addConstraint(Sketcher.Constraint("Equal", 4, 6))
sketch6.addConstraint(Sketcher.Constraint("Equal", 5, 7))
sketch6.addConstraint(Sketcher.Constraint("Horizontal", 1, 3, 4, 3))
sketch6.addConstraint(Sketcher.Constraint("Horizontal", 3, 3, 6, 3))
sketch6.addConstraint(Sketcher.Constraint("Vertical", 1, 3, 2, 3))
sketch6.addConstraint(Sketcher.Constraint("Vertical", 5, 3, 6, 3))
sketch6.addConstraint(Sketcher.Constraint("Diameter", 0, Q("10 mm")))
sketch6.addConstraint(Sketcher.Constraint("Diameter", 1, Q("3 mm")))
sketch6.addConstraint(Sketcher.Constraint("DistanceY", 2, 3, 0, 3, Q("47 mm")))
sketch6.addConstraint(Sketcher.Constraint("DistanceX", 4, 3, 0, 3, Q("135 mm")))
sketch6.addConstraint(Sketcher.Constraint("DistanceX", -1, 1, 0, 3, Q("297.430887 mm")))
sketch6.addConstraint(Sketcher.Constraint("DistanceY", 0, 3, -1, 1, Q("915.073297 mm")))
pad6 = body.newObject("PartDesign::Pad", "Pad005")
pad6.Profile = sketch6
pad6.Length = 70
pad6.Reversed = True

# Sketch on XY plane
sketch7 = body.newObject("Sketcher::SketchObject", "Sketch006")
sketch7.AttachmentSupport = (doc.getObject("XY_Plane"), [""])
sketch7.MapMode = "FlatFace"
add_polygon(sketch7, [(279.681965, -774.53292), (279.681965, -776.53292), (271.681965, -776.53292), (271.681965, -774.53292)])  # lines 0-3
sketch7.addConstraint(Sketcher.Constraint("Vertical", 0))
sketch7.addConstraint(Sketcher.Constraint("Horizontal", 1))
sketch7.addConstraint(Sketcher.Constraint("Vertical", 2))
sketch7.addConstraint(Sketcher.Constraint("Horizontal", 3))
sketch7.addConstraint(Sketcher.Constraint("DistanceX", 1, 2, 1, 1, Q("8 mm")))
sketch7.addConstraint(Sketcher.Constraint("DistanceY", 0, 2, 0, 1, Q("2 mm")))
sketch7.addConstraint(Sketcher.Constraint("DistanceY", 0, 2, -1, 1, Q("776.53292 mm")))
sketch7.addConstraint(Sketcher.Constraint("DistanceX", -1, 1, 0, 2, Q("279.681965 mm")))
pad7 = body.newObject("PartDesign::Pad", "Pad006")
pad7.Profile = sketch7
pad7.Length = 70
pad7.Reversed = True

doc.recompute()
